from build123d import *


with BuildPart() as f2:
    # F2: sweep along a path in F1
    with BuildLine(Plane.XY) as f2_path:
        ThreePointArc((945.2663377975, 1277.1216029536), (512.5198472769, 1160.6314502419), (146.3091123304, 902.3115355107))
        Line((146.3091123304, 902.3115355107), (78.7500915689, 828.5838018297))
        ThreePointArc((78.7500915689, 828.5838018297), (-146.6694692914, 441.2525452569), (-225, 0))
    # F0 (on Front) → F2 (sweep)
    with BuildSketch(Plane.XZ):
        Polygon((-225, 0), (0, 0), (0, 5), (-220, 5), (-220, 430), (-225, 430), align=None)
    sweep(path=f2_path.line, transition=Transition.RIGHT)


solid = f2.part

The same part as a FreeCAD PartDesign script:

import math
import FreeCAD as App
import Part
import Sketcher

V = App.Vector
Q = App.Units.Quantity

doc = App.newDocument("Part")
params = doc.addObject("Spreadsheet::Sheet", "Params")
for row, (alias, value) in enumerate([
    ("sketch1_width", "225 mm"),
    ("sketch1_width2", "220 mm"),
    ("sketch1_height", "425 mm"),
    ("sketch2_radius", "1282 mm"),
    ("sketch2_length", "100 mm"),
], start=1):
    params.set(f"A{row}", alias)
    params.set(f"B{row}", "=" + value)
    params.setAlias(f"B{row}", alias)

body = doc.addObject("PartDesign::Body", "Body")

sketch1 = doc.addObject("Sketcher::SketchObject", "Sketch")
body.addObject(sketch1)
sketch1.AttachmentSupport = (doc.XZ_Plane, [""])
sketch1.MapMode = "FlatFace"
sketch1.addGeometry([
    Part.LineSegment(V(-225, 0, 0), V(0, 0, 0)),
    Part.LineSegment(V(0, 0, 0), V(0, 5, 0)),
    Part.LineSegment(V(0, 5, 0), V(-220, 5, 0)),
    Part.LineSegment(V(-220, 5, 0), V(-220, 430, 0)),
    Part.LineSegment(V(-220, 430, 0), V(-225, 430, 0)),
    Part.LineSegment(V(-225, 430, 0), V(-225, 0, 0)),
], False)
sketch1.addConstraint([
    Sketcher.Constraint("Coincident", 0, 2, 1, 1),
    Sketcher.Constraint("Coincident", 1, 2, 2, 1),
    Sketcher.Constraint("Coincident", 2, 2, 3, 1),
    Sketcher.Constraint("Coincident", 3, 2, 4, 1),
    Sketcher.Constraint("Coincident", 4, 2, 5, 1),
    Sketcher.Constraint("Coincident", 5, 2, 0, 1),
    Sketcher.Constraint("Horizontal", 0),
    Sketcher.Constraint("Vertical", 1),
    Sketcher.Constraint("Horizontal", 2),
    Sketcher.Constraint("Vertical", 3),
    Sketcher.Constraint("Horizontal", 4),
    Sketcher.Constraint("Vertical", 5),
    Sketcher.Constraint("Coincident", 0, 2, -1, 1),
    Sketcher.Constraint("Equal", 4, 1),
    Sketcher.Constraint("DistanceX", 0, 1, 0, 2, Q("225 mm")),
    Sketcher.Constraint("DistanceX", 2, 2, 2, 1, Q("220 mm")),
    Sketcher.Constraint("DistanceY", 3, 1, 3, 2, Q("425 mm")),
])
sketch1.setExpression("Constraints[14]", "Params.sketch1_width")
sketch1.setExpression("Constraints[15]", "Params.sketch1_width2")
sketch1.setExpression("Constraints[16]", "Params.sketch1_height")

sketch2 = doc.addObject("Sketcher::SketchObject", "Sketch001")
body.addObject(sketch2)
sketch2.AttachmentSupport = (doc.XY_Plane, [""])
sketch2.MapMode = "FlatFace"
sketch2.addGeometry([
    Part.ArcOfCircle(Part.Circle(V(1057, 0, 0), V(0, 0, 1), 1282), math.radians(95), math.radians(135)),
    Part.LineSegment(V(146, 902, 0), V(79, 829, 0)),
    Part.ArcOfCircle(Part.Circle(V(1057, 0, 0), V(0, 0, 1), 1282), math.radians(140), math.radians(180)),
], False)
sketch2.addConstraint([
    Sketcher.Constraint("Coincident", 0, 2, 1, 1),
    Sketcher.Constraint("Coincident", 1, 2, 2, 1),
    Sketcher.Constraint("Coincident", 2, 3, 0, 3),
    Sketcher.Constraint("Equal", 0, 2),
    Sketcher.Constraint("PointOnObject", 0, 3, -1),
    Sketcher.Constraint("PointOnObject", 2, 2, -1),
    Sketcher.Constraint("Radius", 0, Q("1282 mm")),
    Sketcher.Constraint("Distance", 1, Q("100 mm")),
    Sketcher.Constraint("DistanceX", -1, 1, 0, 3, Q("1057 mm")),
    Sketcher.Constraint("Angle", 1, Q("-132.5 deg")),
    Sketcher.Constraint("DistanceY", 1, 2, 0, 1, Q("448.537801 mm")),
])
sketch2.setExpression("Constraints[6]", "Params.sketch2_radius")
sketch2.setExpression("Constraints[7]", "Params.sketch2_length")
doc.recompute()

additivepipe = doc.addObject("PartDesign::AdditivePipe", "AdditivePipe")
body.addObject(additivepipe)
additivepipe.Profile = sketch1
additivepipe.Spine = (sketch2, ["Edge1", "Edge2", "Edge3"])
additivepipe.Transition = "Right corner"

doc.recompute()
